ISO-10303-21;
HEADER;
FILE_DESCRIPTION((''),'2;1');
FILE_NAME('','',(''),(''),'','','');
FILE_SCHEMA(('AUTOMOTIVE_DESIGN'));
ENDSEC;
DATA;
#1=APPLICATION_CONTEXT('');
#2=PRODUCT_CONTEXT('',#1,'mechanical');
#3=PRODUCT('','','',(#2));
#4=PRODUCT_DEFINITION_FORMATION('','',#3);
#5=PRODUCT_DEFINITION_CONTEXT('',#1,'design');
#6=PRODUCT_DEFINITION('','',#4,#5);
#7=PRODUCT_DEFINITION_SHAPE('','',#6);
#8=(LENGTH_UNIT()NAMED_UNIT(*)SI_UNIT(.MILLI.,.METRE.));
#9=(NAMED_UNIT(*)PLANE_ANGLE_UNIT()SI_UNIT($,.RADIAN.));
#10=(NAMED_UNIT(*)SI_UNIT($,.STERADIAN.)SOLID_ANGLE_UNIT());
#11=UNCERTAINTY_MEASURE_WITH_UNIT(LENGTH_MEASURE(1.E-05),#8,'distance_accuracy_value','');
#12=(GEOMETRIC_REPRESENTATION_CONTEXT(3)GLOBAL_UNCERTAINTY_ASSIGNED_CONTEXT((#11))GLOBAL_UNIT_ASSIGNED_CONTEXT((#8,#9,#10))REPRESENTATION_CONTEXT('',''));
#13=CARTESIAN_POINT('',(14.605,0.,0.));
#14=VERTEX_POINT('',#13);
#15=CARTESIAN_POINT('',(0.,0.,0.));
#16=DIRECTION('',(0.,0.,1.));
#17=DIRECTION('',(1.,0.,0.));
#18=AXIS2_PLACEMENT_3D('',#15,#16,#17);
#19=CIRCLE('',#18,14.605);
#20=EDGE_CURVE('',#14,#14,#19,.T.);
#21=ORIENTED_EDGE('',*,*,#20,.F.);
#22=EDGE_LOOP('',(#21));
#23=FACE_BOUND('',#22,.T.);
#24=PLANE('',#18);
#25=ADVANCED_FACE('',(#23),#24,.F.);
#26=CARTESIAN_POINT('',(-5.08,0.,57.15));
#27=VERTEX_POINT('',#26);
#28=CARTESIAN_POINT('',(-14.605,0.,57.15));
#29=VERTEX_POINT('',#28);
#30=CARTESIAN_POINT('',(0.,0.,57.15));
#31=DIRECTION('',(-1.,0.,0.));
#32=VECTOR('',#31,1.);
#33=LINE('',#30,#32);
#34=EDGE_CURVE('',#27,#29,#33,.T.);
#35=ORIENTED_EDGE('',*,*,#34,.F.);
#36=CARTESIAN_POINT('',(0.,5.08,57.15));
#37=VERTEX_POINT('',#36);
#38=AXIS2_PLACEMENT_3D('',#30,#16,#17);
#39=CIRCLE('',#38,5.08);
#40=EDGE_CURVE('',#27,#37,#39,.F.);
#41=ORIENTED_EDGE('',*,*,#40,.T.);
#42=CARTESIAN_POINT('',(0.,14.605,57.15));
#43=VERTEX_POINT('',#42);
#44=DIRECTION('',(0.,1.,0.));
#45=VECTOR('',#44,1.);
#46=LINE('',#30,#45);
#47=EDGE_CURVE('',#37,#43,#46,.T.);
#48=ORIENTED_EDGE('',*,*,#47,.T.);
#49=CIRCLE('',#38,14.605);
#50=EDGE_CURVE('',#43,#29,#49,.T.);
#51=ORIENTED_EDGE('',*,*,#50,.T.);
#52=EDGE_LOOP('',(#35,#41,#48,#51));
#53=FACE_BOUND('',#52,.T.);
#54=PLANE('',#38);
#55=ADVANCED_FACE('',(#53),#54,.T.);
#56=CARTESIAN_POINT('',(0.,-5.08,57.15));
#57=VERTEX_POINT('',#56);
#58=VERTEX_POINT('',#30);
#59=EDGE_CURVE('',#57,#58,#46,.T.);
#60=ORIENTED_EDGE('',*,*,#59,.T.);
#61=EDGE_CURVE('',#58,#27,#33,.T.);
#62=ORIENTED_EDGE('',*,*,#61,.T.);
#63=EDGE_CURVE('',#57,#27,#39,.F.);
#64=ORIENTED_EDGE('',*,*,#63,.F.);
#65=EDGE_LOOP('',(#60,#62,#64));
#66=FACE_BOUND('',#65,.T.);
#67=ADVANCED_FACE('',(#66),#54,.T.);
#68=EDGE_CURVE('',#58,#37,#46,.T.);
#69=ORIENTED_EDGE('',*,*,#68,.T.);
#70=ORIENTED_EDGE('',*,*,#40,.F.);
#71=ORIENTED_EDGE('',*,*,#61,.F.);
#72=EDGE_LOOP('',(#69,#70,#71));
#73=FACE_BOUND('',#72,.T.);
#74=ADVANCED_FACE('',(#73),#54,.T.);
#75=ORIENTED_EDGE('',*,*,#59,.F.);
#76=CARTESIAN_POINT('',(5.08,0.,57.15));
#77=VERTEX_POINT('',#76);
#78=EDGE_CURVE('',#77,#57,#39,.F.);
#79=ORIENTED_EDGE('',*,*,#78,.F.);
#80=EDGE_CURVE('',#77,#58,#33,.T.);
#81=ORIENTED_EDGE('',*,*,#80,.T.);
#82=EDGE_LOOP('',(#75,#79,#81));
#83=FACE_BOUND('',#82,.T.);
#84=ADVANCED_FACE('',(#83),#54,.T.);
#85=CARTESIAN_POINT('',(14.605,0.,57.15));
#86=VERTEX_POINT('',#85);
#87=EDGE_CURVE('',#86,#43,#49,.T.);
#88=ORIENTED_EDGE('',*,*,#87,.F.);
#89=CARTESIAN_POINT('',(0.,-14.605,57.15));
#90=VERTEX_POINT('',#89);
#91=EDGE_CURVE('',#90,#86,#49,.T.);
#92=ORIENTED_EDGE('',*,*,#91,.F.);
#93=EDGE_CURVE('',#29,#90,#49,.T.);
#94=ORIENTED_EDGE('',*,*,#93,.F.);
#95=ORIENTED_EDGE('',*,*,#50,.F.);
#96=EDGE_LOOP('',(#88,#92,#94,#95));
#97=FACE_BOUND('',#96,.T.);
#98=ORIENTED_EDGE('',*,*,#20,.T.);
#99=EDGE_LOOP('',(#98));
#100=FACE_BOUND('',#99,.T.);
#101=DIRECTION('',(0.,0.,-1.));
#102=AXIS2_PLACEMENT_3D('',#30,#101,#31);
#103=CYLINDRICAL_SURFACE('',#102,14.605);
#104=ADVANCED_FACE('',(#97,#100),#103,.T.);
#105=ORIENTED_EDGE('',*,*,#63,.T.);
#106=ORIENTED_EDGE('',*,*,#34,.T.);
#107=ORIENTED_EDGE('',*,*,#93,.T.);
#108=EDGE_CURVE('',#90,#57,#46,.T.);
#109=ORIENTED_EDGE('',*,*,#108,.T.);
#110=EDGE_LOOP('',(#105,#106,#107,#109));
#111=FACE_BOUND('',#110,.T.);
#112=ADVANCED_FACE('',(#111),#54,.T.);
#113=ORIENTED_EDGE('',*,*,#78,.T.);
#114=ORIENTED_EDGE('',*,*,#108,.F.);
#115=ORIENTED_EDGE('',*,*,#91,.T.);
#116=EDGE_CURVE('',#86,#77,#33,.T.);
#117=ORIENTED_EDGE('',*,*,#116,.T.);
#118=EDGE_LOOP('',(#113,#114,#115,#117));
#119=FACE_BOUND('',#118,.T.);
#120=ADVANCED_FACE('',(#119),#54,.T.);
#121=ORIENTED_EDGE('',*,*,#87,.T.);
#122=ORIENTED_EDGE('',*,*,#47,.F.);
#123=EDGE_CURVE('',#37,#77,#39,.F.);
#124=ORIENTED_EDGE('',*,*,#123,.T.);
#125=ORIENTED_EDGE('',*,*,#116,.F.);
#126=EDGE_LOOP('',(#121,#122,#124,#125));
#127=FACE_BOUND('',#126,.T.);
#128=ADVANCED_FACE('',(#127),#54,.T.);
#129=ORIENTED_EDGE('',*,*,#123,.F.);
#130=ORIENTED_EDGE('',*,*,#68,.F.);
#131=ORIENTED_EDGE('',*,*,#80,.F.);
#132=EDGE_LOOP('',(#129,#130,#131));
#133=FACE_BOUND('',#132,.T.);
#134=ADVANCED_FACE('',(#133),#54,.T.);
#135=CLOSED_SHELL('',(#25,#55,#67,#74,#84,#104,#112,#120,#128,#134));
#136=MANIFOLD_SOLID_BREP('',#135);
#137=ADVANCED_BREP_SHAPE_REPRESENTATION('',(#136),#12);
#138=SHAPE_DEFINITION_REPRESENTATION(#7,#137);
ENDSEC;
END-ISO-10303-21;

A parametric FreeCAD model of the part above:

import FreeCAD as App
import Part
import Sketcher

V = App.Vector
Q = App.Units.Quantity

doc = App.newDocument("Part")
body = doc.addObject("PartDesign::Body", "Body")

sketch1 = doc.addObject("Sketcher::SketchObject", "Sketch")
body.addObject(sketch1)
sketch1.AttachmentSupport = (doc.XY_Plane, [""])
sketch1.MapMode = "FlatFace"
sketch1.addGeometry(Part.Circle(V(0, 0, 0), V(0, 0, 1), 14.605), False)
sketch1.addConstraint([
    Sketcher.Constraint("Coincident", 0, 3, -1, 1),
    Sketcher.Constraint("Diameter", 0, Q("1.15 in")),
])
pad1 = doc.addObject("PartDesign::Pad", "Pad")
body.addObject(pad1)
pad1.Profile = sketch1
pad1.Length = Q("2.25 in")

doc.recompute()
